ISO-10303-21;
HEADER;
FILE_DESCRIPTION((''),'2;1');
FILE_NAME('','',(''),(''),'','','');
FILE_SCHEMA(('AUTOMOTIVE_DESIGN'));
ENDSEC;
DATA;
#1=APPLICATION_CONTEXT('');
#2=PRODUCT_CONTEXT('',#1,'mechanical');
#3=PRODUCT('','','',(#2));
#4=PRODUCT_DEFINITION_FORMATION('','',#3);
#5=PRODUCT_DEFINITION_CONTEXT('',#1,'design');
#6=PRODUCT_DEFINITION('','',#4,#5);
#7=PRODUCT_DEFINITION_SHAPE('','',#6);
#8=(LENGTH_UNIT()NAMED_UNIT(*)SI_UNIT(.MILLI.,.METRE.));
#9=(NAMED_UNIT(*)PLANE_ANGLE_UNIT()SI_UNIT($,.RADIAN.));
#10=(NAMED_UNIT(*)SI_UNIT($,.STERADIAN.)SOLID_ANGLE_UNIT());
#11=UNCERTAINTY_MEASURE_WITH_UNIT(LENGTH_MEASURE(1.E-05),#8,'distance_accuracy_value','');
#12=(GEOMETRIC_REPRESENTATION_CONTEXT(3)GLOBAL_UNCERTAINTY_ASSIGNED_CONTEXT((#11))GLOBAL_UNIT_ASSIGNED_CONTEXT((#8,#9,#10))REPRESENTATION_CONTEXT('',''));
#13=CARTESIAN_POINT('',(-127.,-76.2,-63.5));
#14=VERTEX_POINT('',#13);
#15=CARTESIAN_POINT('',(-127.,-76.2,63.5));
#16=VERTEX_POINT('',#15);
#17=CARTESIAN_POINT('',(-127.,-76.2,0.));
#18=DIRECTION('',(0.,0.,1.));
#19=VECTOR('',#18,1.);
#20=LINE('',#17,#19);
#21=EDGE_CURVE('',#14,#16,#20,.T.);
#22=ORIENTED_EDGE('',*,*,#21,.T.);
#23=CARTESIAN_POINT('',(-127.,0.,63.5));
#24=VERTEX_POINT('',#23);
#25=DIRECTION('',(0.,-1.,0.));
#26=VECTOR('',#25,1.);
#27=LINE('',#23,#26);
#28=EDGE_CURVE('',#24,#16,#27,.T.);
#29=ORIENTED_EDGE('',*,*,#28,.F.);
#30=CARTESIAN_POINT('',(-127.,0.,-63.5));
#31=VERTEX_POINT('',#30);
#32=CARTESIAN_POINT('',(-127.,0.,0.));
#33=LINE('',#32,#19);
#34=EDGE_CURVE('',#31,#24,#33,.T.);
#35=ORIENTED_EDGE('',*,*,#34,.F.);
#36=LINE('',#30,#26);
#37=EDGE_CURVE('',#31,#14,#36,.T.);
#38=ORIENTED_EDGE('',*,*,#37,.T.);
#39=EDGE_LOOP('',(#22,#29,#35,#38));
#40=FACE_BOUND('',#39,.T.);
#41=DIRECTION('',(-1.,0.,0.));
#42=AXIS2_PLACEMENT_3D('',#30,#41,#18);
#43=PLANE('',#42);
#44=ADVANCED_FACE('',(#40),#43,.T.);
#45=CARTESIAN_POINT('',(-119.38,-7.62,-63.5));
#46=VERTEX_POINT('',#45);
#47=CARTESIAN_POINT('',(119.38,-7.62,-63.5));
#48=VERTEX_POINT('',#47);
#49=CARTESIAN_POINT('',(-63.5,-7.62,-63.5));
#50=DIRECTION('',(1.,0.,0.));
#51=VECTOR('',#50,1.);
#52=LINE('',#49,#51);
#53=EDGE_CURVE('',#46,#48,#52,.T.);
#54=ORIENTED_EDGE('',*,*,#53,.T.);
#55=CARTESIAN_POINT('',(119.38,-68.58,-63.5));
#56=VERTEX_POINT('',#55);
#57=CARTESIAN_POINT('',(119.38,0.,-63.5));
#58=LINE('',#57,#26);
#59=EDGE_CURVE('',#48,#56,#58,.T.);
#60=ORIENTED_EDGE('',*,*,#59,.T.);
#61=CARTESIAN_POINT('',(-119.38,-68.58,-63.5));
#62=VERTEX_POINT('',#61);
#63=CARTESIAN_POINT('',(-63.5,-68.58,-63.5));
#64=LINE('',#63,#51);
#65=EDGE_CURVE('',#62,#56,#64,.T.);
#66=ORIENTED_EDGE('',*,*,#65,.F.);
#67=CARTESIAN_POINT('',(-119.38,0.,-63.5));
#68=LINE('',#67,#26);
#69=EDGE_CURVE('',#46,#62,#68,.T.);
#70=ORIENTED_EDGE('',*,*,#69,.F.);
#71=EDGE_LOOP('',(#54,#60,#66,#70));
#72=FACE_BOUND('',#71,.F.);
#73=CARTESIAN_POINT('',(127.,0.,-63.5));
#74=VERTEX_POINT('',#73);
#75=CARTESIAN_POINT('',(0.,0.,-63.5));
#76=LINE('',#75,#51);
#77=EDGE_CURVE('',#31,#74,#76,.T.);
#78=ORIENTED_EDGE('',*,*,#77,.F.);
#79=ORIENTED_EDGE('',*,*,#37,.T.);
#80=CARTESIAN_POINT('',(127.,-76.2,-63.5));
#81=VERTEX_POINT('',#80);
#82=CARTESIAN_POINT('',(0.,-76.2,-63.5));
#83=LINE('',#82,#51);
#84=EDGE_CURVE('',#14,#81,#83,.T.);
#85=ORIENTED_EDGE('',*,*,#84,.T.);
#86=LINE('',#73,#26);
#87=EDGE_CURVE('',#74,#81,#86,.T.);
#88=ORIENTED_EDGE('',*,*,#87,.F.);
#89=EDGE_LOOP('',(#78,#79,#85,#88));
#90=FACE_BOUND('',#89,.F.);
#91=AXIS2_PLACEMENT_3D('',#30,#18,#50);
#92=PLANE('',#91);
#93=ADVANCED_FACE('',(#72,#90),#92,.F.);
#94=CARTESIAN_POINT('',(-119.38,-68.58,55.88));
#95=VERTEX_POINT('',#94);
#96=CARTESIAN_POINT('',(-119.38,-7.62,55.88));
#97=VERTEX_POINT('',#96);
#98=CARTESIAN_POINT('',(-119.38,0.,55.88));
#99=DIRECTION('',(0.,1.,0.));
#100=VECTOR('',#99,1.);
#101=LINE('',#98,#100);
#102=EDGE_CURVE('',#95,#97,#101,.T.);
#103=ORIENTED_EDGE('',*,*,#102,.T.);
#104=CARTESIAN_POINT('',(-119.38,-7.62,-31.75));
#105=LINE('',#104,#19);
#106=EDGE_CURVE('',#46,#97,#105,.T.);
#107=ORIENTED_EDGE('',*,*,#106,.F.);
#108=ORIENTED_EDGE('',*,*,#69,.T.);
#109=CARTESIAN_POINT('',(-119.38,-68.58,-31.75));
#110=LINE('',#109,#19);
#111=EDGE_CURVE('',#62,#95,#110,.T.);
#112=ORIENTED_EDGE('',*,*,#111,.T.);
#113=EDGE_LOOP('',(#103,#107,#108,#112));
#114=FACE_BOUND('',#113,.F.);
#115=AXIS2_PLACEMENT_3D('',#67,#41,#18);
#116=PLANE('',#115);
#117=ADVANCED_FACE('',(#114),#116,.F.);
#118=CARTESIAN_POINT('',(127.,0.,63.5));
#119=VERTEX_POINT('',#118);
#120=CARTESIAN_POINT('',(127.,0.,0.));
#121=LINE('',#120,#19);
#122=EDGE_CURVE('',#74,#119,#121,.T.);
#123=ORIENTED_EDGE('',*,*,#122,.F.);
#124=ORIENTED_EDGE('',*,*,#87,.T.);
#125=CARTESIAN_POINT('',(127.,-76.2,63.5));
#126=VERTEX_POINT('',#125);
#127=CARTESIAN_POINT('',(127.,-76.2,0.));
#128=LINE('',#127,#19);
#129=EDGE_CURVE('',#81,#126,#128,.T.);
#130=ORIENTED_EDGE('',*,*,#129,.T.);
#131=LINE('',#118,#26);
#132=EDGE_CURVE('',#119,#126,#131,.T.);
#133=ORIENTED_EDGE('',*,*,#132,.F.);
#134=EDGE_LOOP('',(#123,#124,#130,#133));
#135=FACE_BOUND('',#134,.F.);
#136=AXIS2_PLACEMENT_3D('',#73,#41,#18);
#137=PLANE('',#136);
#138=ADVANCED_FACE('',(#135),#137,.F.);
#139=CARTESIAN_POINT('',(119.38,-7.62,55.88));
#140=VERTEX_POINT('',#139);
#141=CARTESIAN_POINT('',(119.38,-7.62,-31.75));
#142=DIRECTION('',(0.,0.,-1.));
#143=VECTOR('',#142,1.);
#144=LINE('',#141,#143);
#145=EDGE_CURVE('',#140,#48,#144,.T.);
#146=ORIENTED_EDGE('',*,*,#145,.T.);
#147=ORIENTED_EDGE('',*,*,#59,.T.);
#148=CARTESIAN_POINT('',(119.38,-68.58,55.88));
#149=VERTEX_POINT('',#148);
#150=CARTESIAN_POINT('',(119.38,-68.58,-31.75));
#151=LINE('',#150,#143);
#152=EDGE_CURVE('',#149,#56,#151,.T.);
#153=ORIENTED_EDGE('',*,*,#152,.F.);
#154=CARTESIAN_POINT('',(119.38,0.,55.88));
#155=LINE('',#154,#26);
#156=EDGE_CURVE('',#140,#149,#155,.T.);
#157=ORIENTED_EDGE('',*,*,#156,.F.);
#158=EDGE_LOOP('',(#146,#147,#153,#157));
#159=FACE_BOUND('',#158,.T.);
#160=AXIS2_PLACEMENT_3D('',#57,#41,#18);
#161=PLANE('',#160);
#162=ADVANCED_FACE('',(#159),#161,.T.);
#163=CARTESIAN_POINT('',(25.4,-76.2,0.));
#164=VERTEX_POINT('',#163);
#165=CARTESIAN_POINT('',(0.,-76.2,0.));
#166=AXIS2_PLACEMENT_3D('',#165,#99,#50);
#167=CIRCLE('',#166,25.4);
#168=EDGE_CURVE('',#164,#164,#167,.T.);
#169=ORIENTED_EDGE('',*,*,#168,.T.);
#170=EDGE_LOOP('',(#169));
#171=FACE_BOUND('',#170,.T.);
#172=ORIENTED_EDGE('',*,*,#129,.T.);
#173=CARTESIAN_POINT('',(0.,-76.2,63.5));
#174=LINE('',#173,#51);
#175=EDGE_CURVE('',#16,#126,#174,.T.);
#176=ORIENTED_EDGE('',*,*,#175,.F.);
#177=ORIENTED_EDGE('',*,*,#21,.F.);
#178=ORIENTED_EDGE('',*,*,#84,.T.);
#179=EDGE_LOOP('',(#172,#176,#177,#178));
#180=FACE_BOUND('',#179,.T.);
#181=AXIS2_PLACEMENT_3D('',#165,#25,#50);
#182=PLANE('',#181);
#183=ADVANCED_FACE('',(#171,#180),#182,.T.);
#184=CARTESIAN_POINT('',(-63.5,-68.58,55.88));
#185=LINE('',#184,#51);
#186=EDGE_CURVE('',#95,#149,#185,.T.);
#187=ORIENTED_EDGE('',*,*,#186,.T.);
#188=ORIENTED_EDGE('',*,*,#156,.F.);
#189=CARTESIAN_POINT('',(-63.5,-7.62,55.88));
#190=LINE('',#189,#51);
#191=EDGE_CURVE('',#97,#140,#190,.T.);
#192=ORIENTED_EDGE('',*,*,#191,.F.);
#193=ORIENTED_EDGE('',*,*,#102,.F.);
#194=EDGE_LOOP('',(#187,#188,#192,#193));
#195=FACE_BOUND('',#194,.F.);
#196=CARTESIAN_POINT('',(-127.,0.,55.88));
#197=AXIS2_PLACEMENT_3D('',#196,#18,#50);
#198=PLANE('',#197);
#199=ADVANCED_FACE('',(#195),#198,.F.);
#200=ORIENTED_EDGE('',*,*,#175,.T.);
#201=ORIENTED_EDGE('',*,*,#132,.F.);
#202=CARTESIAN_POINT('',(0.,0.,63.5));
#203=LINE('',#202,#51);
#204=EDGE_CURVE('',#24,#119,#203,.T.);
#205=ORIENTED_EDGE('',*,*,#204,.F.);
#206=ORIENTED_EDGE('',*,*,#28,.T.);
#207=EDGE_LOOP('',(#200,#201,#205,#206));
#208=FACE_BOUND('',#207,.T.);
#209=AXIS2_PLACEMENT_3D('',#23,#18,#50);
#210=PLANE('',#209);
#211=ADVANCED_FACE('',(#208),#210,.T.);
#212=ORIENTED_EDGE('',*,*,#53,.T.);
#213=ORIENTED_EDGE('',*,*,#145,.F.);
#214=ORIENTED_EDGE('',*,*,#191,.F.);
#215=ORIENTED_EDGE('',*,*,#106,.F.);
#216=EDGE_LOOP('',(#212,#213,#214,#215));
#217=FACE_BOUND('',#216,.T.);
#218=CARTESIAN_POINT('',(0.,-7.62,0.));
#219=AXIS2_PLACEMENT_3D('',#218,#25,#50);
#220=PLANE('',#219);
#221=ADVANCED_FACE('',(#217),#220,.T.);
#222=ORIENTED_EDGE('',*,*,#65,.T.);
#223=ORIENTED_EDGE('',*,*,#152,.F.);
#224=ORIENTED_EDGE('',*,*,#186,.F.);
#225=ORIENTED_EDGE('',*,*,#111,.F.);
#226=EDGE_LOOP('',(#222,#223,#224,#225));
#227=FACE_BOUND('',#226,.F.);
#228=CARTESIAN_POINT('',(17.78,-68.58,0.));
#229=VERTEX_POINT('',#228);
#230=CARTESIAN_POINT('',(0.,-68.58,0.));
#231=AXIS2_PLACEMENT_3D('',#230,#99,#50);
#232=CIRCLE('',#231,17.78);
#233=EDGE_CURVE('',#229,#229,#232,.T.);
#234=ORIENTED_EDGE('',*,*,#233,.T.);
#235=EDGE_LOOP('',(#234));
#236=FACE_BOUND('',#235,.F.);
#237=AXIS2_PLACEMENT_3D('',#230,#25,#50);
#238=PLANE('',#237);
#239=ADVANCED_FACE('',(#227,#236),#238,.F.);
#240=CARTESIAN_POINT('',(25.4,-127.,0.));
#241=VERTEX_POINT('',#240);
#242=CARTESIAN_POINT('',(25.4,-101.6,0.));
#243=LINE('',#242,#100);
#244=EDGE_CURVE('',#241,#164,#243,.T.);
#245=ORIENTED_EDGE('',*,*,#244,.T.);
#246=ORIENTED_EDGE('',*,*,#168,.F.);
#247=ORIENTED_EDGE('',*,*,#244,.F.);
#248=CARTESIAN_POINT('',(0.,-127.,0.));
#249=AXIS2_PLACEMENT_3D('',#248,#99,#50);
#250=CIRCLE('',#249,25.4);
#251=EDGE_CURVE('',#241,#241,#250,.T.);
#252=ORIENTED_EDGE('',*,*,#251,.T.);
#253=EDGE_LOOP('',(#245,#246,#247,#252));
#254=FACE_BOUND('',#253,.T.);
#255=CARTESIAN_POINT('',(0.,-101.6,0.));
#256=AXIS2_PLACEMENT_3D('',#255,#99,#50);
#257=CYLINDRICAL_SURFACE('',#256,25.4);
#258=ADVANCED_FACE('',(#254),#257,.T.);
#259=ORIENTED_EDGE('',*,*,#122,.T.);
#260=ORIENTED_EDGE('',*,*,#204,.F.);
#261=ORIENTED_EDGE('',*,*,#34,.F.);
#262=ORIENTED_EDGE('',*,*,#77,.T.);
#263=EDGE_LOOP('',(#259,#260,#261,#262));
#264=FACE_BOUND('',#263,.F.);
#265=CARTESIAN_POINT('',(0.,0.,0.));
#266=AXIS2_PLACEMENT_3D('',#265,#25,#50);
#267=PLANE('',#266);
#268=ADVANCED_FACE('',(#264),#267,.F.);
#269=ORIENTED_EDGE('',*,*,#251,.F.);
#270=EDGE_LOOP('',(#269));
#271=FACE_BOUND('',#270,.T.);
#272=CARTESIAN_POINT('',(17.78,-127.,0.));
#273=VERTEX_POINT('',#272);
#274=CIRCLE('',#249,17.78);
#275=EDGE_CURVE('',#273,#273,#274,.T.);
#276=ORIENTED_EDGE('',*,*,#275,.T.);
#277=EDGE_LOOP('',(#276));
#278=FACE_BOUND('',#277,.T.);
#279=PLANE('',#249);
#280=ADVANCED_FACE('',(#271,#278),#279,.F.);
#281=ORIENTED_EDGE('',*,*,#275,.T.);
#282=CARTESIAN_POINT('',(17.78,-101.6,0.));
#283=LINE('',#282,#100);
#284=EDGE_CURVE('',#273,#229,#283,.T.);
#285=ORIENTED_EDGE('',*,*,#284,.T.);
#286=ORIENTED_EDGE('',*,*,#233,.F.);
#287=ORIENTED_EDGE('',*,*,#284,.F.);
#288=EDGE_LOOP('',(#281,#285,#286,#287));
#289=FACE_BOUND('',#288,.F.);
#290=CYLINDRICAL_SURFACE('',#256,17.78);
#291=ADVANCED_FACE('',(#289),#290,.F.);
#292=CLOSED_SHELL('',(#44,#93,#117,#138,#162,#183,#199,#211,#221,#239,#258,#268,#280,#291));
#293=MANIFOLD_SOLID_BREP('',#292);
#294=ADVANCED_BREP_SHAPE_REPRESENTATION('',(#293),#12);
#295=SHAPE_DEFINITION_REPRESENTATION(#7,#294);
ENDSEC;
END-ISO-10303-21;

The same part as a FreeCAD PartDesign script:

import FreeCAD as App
import Part
import Sketcher
from FreeCAD import Vector
Q = App.Units.Quantity


def faces_at(feature, points):
    """Names of the faces that lie closest to the given points."""
    faces = feature.Shape.Faces
    near = lambda p: min(range(len(faces)), key=lambda i: faces[i].distToShape(Part.Vertex(*p))[0])
    return sorted({f"Face{near(p) + 1}" for p in points})

doc = App.newDocument("Part")
body = doc.addObject("PartDesign::Body", "Body")

# Sketch on XZ plane
sketch1 = doc.addObject("Sketcher::SketchObject", "Sketch")
body.addObject(sketch1)
sketch1.AttachmentSupport = (doc.XZ_Plane, [""])
sketch1.MapMode = "FlatFace"
sketch1.addGeometry([
    Part.LineSegment(Vector(-127, 63.5, 0), Vector(-127, -63.5, 0)),
    Part.LineSegment(Vector(-127, -63.5, 0), Vector(127, -63.5, 0)),
    Part.LineSegment(Vector(127, -63.5, 0), Vector(127, 63.5, 0)),
    Part.LineSegment(Vector(127, 63.5, 0), Vector(-127, 63.5, 0)),
], False)
sketch1.addConstraint([
    Sketcher.Constraint("Coincident", 0, 2, 1, 1),
    Sketcher.Constraint("Coincident", 1, 2, 2, 1),
    Sketcher.Constraint("Coincident", 2, 2, 3, 1),
    Sketcher.Constraint("Coincident", 3, 2, 0, 1),
    Sketcher.Constraint("Vertical", 0),
    Sketcher.Constraint("Horizontal", 1),
    Sketcher.Constraint("Vertical", 2),
    Sketcher.Constraint("Horizontal", 3),
    Sketcher.Constraint("Symmetric", 0, 2, 2, 2, -1, 1),
    Sketcher.Constraint("DistanceX", 1, 1, 1, 2, Q("10 in")),
    Sketcher.Constraint("DistanceY", 0, 2, 0, 1, Q("5 in")),
])
pad1 = doc.addObject("PartDesign::Pad", "Pad")
body.addObject(pad1)
pad1.Profile = sketch1
pad1.Length = Q("3 in")

# Sketch on XY plane
sketch2 = doc.addObject("Sketcher::SketchObject", "Sketch001")
body.addObject(sketch2)
sketch2.AttachmentSupport = (doc.XY_Plane, [""])
sketch2.MapMode = "FlatFace"
sketch2.addGeometry([
    Part.LineSegment(Vector(0, -76.2, 0), Vector(0, -127, 0)),
    Part.LineSegment(Vector(0, -127, 0), Vector(25.4, -127, 0)),
    Part.LineSegment(Vector(25.4, -127, 0), Vector(25.4, -76.2, 0)),
    Part.LineSegment(Vector(25.4, -76.2, 0), Vector(0, -76.2, 0)),
], False)
sketch2.addConstraint([
    Sketcher.Constraint("Coincident", 0, 2, 1, 1),
    Sketcher.Constraint("Coincident", 1, 2, 2, 1),
    Sketcher.Constraint("Coincident", 2, 2, 3, 1),
    Sketcher.Constraint("Coincident", 3, 2, 0, 1),
    Sketcher.Constraint("Vertical", 0),
    Sketcher.Constraint("Horizontal", 1),
    Sketcher.Constraint("Vertical", 2),
    Sketcher.Constraint("Horizontal", 3),
    Sketcher.Constraint("PointOnObject", 0, 2, -2),
    Sketcher.Constraint("DistanceX", 1, 1, 1, 2, Q("1 in")),
    Sketcher.Constraint("DistanceY", 0, 2, 0, 1, Q("2 in")),
    Sketcher.Constraint("DistanceY", 0, 2, -1, 1, Q("5 in")),
])
revolution = doc.addObject("PartDesign::Revolution", "Revolution")
body.addObject(revolution)
revolution.Profile = sketch2
revolution.ReferenceAxis = (sketch2, ["V_Axis"])
revolution.Angle = 360
doc.recompute()

thickness = doc.addObject("PartDesign::Thickness", "Thickness")
body.addObject(thickness)
thickness.Base = (revolution, faces_at(revolution, [(0, -127, 0), (0, -38.1, -63.5)]))
thickness.Value = Q("0.3 in")
thickness.Reversed = True
thickness.Join = "Intersection"

doc.recompute()
